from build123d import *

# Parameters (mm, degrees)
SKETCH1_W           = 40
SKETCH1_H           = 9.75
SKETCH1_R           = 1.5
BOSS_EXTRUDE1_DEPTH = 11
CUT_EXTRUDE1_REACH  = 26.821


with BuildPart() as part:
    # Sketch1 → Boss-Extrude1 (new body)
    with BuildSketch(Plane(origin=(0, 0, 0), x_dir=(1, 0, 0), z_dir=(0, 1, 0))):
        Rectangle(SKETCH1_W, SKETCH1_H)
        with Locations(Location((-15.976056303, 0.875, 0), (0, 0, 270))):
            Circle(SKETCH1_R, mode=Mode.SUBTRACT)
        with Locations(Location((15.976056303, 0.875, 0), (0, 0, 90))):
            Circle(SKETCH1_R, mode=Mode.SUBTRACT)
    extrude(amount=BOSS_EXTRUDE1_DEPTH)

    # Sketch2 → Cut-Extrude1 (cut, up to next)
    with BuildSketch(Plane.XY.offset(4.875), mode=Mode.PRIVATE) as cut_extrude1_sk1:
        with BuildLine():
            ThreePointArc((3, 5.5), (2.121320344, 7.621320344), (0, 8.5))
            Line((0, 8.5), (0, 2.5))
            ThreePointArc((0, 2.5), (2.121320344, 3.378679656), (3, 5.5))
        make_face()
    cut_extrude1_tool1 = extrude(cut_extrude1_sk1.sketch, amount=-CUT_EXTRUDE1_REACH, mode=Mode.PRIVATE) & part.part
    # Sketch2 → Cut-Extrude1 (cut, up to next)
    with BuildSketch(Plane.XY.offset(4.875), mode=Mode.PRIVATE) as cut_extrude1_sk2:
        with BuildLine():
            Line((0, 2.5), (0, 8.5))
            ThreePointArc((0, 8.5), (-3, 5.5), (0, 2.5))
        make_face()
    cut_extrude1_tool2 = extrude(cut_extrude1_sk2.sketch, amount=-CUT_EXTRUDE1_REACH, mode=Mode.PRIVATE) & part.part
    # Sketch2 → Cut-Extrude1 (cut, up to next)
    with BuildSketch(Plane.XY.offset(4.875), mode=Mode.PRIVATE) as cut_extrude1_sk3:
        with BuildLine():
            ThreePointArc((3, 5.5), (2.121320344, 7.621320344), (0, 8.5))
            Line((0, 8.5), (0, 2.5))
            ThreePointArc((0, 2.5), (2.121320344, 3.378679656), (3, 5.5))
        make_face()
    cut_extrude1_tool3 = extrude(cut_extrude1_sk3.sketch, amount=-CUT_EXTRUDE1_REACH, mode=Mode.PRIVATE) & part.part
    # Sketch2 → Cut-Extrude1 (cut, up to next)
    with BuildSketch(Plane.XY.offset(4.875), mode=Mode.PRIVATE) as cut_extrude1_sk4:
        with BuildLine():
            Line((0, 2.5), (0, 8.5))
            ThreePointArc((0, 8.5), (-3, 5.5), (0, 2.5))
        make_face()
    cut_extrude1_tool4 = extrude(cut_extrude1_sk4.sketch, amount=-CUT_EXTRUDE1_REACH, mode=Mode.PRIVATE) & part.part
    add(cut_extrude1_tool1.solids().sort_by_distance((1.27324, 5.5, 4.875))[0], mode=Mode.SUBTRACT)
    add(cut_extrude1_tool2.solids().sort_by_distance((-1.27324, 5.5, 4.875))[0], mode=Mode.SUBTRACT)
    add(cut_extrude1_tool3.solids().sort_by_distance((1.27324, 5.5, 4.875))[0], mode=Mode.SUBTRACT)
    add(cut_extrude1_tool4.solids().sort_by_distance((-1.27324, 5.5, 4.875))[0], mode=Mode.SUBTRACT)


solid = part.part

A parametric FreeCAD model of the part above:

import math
import FreeCAD as App
import Part
import Sketcher

V = App.Vector

doc = App.newDocument("Part")
params = doc.addObject("Spreadsheet::Sheet", "Params")
for row, (alias, value) in enumerate([
    ("sketch1_diameter", "3 mm"),
    ("sketch1_width", "40 mm"),
    ("sketch1_height", "9.75 mm"),
    ("pad1_length", "11 mm"),
    ("sketch2_radius", "3 mm"),
    ("sketch3_radius", "3 mm"),
    ("sketch4_radius", "3 mm"),
    ("pocket3_length", "9.75 mm"),
    ("sketch5_radius", "3 mm"),
    ("pocket4_length", "9.75 mm"),
], start=1):
    params.set(f"A{row}", alias)
    params.set(f"B{row}", "=" + value)
    params.setAlias(f"B{row}", alias)

body = doc.addObject("PartDesign::Body", "Body")

# Sketch on XZ plane
sketch1 = body.newObject("Sketcher::SketchObject", "Sketch")
sketch1.AttachmentSupport = (doc.getObject("XZ_Plane"), [""])
sketch1.MapMode = "FlatFace"
sketch1.addGeometry(Part.LineSegment(V(-20, -4.875, 0), V(-20, 4.875, 0)), False)
sketch1.addGeometry(Part.LineSegment(V(-20, 4.875, 0), V(20, 4.875, 0)), False)
sketch1.addGeometry(Part.LineSegment(V(20, 4.875, 0), V(20, -4.875, 0)), False)
sketch1.addGeometry(Part.LineSegment(V(20, -4.875, 0), V(-20, -4.875, 0)), False)
sketch1.addGeometry(Part.Circle(V(-15.976056, -0.875, 0), V(0, 0, 1), 1.5), False)
sketch1.addGeometry(Part.Circle(V(15.976056, -0.875, 0), V(0, 0, 1), 1.5), False)
sketch1.addConstraint(Sketcher.Constraint("Coincident", 0, 2, 1, 1))
sketch1.addConstraint(Sketcher.Constraint("Coincident", 1, 2, 2, 1))
sketch1.addConstraint(Sketcher.Constraint("Coincident", 2, 2, 3, 1))
sketch1.addConstraint(Sketcher.Constraint("Coincident", 3, 2, 0, 1))
sketch1.addConstraint(Sketcher.Constraint("Vertical", 0))
sketch1.addConstraint(Sketcher.Constraint("Horizontal", 1))
sketch1.addConstraint(Sketcher.Constraint("Vertical", 2))
sketch1.addConstraint(Sketcher.Constraint("Horizontal", 3))
sketch1.addConstraint(Sketcher.Constraint("Equal", 4, 5))
sketch1.addConstraint(Sketcher.Constraint("Symmetric", 0, 2, 2, 2, -1, 1))
sketch1.addConstraint(Sketcher.Constraint("Symmetric", 4, 3, 5, 3, -2))
sketch1.addConstraint(Sketcher.Constraint("Diameter", 4, 3.0))
sketch1.addConstraint(Sketcher.Constraint("DistanceX", 1, 1, 1, 2, 40.0))
sketch1.addConstraint(Sketcher.Constraint("DistanceY", 2, 2, 5, 3, 4.0))
sketch1.addConstraint(Sketcher.Constraint("DistanceY", 0, 1, 0, 2, 9.75))
sketch1.addConstraint(Sketcher.Constraint("DistanceX", 4, 3, -1, 1, 15.976056))
sketch1.setExpression("Constraints[11]", "Params.sketch1_diameter")
sketch1.setExpression("Constraints[12]", "Params.sketch1_width")
sketch1.setExpression("Constraints[14]", "Params.sketch1_height")
pad1 = body.newObject("PartDesign::Pad", "Pad")
pad1.Profile = sketch1
pad1.setExpression("Length", "Params.pad1_length")
pad1.Reversed = True

# Sketch on XY plane
sketch2 = body.newObject("Sketcher::SketchObject", "Sketch001")
sketch2.AttachmentSupport = (doc.getObject("XY_Plane"), [""])
sketch2.MapMode = "FlatFace"
sketch2.AttachmentOffset = App.Placement(V(0, 0, 4.875), App.Rotation())
sketch2.addGeometry(Part.ArcOfCircle(Part.Circle(V(0, 5.5, 0), V(0, 0, 1), 3), math.radians(0), math.radians(90)), False)
sketch2.addGeometry(Part.LineSegment(V(0, 8.5, 0), V(0, 2.5, 0)), False)
sketch2.addGeometry(Part.ArcOfCircle(Part.Circle(V(0, 5.5, 0), V(0, 0, 1), 3), math.radians(-90), math.radians(0)), False)
sketch2.addConstraint(Sketcher.Constraint("Coincident", 0, 2, 1, 1))
sketch2.addConstraint(Sketcher.Constraint("Coincident", 1, 2, 2, 1))
sketch2.addConstraint(Sketcher.Constraint("Tangent", 2, 2, 0, 1))
sketch2.addConstraint(Sketcher.Constraint("Vertical", 1))
sketch2.addConstraint(Sketcher.Constraint("Equal", 0, 2))
sketch2.addConstraint(Sketcher.Constraint("PointOnObject", 0, 3, -2))
sketch2.addConstraint(Sketcher.Constraint("PointOnObject", 0, 2, -2))
sketch2.addConstraint(Sketcher.Constraint("Horizontal", 0, 3, 2, 2))
sketch2.addConstraint(Sketcher.Constraint("Radius", 0, 3.0))
sketch2.addConstraint(Sketcher.Constraint("DistanceY", -1, 1, 0, 3, 5.5))
sketch2.setExpression("Constraints[8]", "Params.sketch2_radius")
pocket1 = body.newObject("PartDesign::Pocket", "Pocket")
pocket1.Profile = sketch2
pocket1.Type = "UpToFirst"

# Sketch on XY plane
sketch3 = body.newObject("Sketcher::SketchObject", "Sketch002")
sketch3.AttachmentSupport = (doc.getObject("XY_Plane"), [""])
sketch3.MapMode = "FlatFace"
sketch3.AttachmentOffset = App.Placement(V(0, 0, 4.875), App.Rotation())
sketch3.addGeometry(Part.LineSegment(V(0, 2.5, 0), V(0, 8.5, 0)), False)
sketch3.addGeometry(Part.ArcOfCircle(Part.Circle(V(0, 5.5, 0), V(0, 0, 1), 3), math.radians(90), math.radians(270)), False)
sketch3.addConstraint(Sketcher.Constraint("Coincident", 0, 1, 1, 2))
sketch3.addConstraint(Sketcher.Constraint("Coincident", 1, 1, 0, 2))
sketch3.addConstraint(Sketcher.Constraint("Vertical", 0))
sketch3.addConstraint(Sketcher.Constraint("PointOnObject", 1, 3, -2))
sketch3.addConstraint(Sketcher.Constraint("PointOnObject", 0, 1, -2))
sketch3.addConstraint(Sketcher.Constraint("Radius", 1, 3.0))
sketch3.addConstraint(Sketcher.Constraint("DistanceY", -1, 1, 1, 3, 5.5))
sketch3.setExpression("Constraints[5]", "Params.sketch3_radius")
pocket2 = body.newObject("PartDesign::Pocket", "Pocket001")
pocket2.Profile = sketch3
pocket2.Type = "UpToFirst"

# Sketch on XY plane
sketch4 = body.newObject("Sketcher::SketchObject", "Sketch003")
sketch4.AttachmentSupport = (doc.getObject("XY_Plane"), [""])
sketch4.MapMode = "FlatFace"
sketch4.AttachmentOffset = App.Placement(V(0, 0, 4.875), App.Rotation())
sketch4.addGeometry(Part.ArcOfCircle(Part.Circle(V(0, 5.5, 0), V(0, 0, 1), 3), math.radians(0), math.radians(90)), False)
sketch4.addGeometry(Part.LineSegment(V(0, 8.5, 0), V(0, 2.5, 0)), False)
sketch4.addGeometry(Part.ArcOfCircle(Part.Circle(V(0, 5.5, 0), V(0, 0, 1), 3), math.radians(-90), math.radians(0)), False)
sketch4.addConstraint(Sketcher.Constraint("Coincident", 0, 2, 1, 1))
sketch4.addConstraint(Sketcher.Constraint("Coincident", 1, 2, 2, 1))
sketch4.addConstraint(Sketcher.Constraint("Tangent", 2, 2, 0, 1))
sketch4.addConstraint(Sketcher.Constraint("Vertical", 1))
sketch4.addConstraint(Sketcher.Constraint("Equal", 0, 2))
sketch4.addConstraint(Sketcher.Constraint("PointOnObject", 0, 3, -2))
sketch4.addConstraint(Sketcher.Constraint("PointOnObject", 0, 2, -2))
sketch4.addConstraint(Sketcher.Constraint("Horizontal", 0, 3, 2, 2))
sketch4.addConstraint(Sketcher.Constraint("Radius", 0, 3.0))
sketch4.addConstraint(Sketcher.Constraint("DistanceY", -1, 1, 0, 3, 5.5))
sketch4.setExpression("Constraints[8]", "Params.sketch4_radius")
pocket3 = body.newObject("PartDesign::Pocket", "Pocket002")
pocket3.Profile = sketch4
pocket3.setExpression("Length", "Params.pocket3_length")

# Sketch on XY plane
sketch5 = body.newObject("Sketcher::SketchObject", "Sketch004")
sketch5.AttachmentSupport = (doc.getObject("XY_Plane"), [""])
sketch5.MapMode = "FlatFace"
sketch5.AttachmentOffset = App.Placement(V(0, 0, 4.875), App.Rotation())
sketch5.addGeometry(Part.LineSegment(V(0, 2.5, 0), V(0, 8.5, 0)), False)
sketch5.addGeometry(Part.ArcOfCircle(Part.Circle(V(0, 5.5, 0), V(0, 0, 1), 3), math.radians(90), math.radians(270)), False)
sketch5.addConstraint(Sketcher.Constraint("Coincident", 0, 1, 1, 2))
sketch5.addConstraint(Sketcher.Constraint("Coincident", 1, 1, 0, 2))
sketch5.addConstraint(Sketcher.Constraint("Vertical", 0))
sketch5.addConstraint(Sketcher.Constraint("PointOnObject", 1, 3, -2))
sketch5.addConstraint(Sketcher.Constraint("PointOnObject", 0, 1, -2))
sketch5.addConstraint(Sketcher.Constraint("Radius", 1, 3.0))
sketch5.addConstraint(Sketcher.Constraint("DistanceY", -1, 1, 1, 3, 5.5))
sketch5.setExpression("Constraints[5]", "Params.sketch5_radius")
pocket4 = body.newObject("PartDesign::Pocket", "Pocket003")
pocket4.Profile = sketch5
pocket4.setExpression("Length", "Params.pocket4_length")

doc.recompute()
